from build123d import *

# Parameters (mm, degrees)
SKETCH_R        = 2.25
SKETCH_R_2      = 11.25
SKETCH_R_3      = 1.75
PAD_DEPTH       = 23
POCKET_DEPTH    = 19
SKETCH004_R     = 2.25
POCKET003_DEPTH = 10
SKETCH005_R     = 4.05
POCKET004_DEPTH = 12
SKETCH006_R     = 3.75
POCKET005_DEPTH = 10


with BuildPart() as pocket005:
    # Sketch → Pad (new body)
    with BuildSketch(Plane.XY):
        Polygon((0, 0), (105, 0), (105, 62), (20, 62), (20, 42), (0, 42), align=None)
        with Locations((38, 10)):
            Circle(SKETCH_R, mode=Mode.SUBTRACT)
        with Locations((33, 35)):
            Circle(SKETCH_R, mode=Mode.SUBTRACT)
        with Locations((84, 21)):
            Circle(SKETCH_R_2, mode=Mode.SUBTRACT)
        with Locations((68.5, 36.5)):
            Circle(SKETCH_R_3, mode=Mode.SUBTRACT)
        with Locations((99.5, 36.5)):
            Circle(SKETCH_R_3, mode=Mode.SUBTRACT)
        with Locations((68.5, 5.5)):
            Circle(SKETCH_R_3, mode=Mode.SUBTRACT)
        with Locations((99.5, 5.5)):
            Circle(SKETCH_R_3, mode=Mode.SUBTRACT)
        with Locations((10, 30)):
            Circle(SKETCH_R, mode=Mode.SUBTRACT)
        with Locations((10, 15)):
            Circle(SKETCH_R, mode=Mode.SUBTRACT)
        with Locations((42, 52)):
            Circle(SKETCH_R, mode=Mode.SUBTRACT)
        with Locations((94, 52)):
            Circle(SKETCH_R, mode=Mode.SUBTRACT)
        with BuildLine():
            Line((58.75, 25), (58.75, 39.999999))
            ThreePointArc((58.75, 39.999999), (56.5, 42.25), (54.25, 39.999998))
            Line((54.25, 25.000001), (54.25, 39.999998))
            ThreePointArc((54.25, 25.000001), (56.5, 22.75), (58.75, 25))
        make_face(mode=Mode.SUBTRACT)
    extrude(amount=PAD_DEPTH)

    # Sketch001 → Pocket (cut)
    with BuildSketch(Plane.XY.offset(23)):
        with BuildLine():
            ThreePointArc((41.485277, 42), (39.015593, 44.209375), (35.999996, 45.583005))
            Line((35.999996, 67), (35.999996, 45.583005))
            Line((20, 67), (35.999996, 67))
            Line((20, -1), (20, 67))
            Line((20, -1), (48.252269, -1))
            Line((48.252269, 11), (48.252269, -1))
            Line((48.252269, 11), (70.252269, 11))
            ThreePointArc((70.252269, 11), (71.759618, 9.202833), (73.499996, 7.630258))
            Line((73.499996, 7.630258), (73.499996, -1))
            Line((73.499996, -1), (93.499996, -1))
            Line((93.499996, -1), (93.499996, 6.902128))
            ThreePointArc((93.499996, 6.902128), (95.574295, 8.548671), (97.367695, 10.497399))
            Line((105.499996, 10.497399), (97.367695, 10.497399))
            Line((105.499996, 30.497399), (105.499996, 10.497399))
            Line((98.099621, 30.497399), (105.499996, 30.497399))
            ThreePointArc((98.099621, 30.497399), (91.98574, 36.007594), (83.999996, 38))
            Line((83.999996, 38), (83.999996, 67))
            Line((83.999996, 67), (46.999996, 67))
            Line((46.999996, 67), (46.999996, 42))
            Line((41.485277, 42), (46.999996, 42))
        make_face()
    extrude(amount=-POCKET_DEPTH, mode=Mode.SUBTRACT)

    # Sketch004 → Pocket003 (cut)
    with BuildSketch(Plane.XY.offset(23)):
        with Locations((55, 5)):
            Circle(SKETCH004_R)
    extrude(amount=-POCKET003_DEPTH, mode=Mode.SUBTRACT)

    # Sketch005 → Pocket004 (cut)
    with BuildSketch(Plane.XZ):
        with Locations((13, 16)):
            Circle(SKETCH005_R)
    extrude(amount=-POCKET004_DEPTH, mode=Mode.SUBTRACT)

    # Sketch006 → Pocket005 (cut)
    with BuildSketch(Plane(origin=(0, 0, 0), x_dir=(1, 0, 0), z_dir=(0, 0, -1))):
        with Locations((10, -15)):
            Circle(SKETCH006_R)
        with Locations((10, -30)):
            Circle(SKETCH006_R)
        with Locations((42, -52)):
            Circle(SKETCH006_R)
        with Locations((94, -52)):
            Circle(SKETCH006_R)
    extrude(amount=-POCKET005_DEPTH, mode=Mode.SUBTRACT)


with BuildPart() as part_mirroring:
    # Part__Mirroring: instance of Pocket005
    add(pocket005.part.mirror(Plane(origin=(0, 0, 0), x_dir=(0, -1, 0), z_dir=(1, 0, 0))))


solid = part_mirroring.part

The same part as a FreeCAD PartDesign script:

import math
import FreeCAD as App
import Part
import Sketcher
from FreeCAD import Vector
Q = App.Units.Quantity

doc = App.newDocument("Part")
body = doc.addObject("PartDesign::Body", "Body")

# Sketch on XY plane
sketch1 = body.newObject("Sketcher::SketchObject", "Sketch")
sketch1.AttachmentSupport = (doc.getObject("XY_Plane"), [""])
sketch1.MapMode = "FlatFace"
sketch1.addGeometry(Part.LineSegment(Vector(0, 0, 0), Vector(105, 0, 0)), False)
sketch1.addGeometry(Part.LineSegment(Vector(105, 0, 0), Vector(105, 62, 0)), False)
sketch1.addGeometry(Part.LineSegment(Vector(105, 62, 0), Vector(20, 62, 0)), False)
sketch1.addGeometry(Part.LineSegment(Vector(20, 62, 0), Vector(20, 42, 0)), False)
sketch1.addGeometry(Part.LineSegment(Vector(20, 42, 0), Vector(0, 42, 0)), False)
sketch1.addGeometry(Part.LineSegment(Vector(0, 42, 0), Vector(0, 0, 0)), False)
sketch1.addGeometry(Part.Circle(Vector(10, 15, 0), Vector(0, 0, 1), 2.2), False)
sketch1.addGeometry(Part.Circle(Vector(38, 10, 0), Vector(0, 0, 1), 2.2), False)
sketch1.addGeometry(Part.Circle(Vector(68.5, 5.5, 0), Vector(0, 0, 1), 1.8), False)
sketch1.addGeometry(Part.Circle(Vector(99.5, 5.5, 0), Vector(0, 0, 1), 1.8), False)
sketch1.addGeometry(Part.Circle(Vector(84, 21, 0), Vector(0, 0, 1), 11.2), False)
sketch1.addGeometry(Part.Circle(Vector(10, 30, 0), Vector(0, 0, 1), 2.2), False)
sketch1.addGeometry(Part.Circle(Vector(33, 35, 0), Vector(0, 0, 1), 2.2), False)
sketch1.addGeometry(Part.Circle(Vector(42, 52, 0), Vector(0, 0, 1), 2.2), False)
sketch1.addGeometry(Part.LineSegment(Vector(58.8, 40, 0), Vector(58.8, 25, 0)), False)
sketch1.addGeometry(Part.ArcOfCircle(Part.Circle(Vector(56.5, 25, 0), Vector(0, 0, 1), 2.2), math.radians(180), math.radians(360)), False)
sketch1.addGeometry(Part.LineSegment(Vector(54.2, 25, 0), Vector(54.2, 40, 0)), False)
sketch1.addGeometry(Part.ArcOfCircle(Part.Circle(Vector(56.5, 40, 0), Vector(0, 0, 1), 2.2), math.radians(0), math.radians(180)), False)
sketch1.addGeometry(Part.Circle(Vector(68.5, 36.5, 0), Vector(0, 0, 1), 1.8), False)
sketch1.addGeometry(Part.Circle(Vector(99.5, 36.5, 0), Vector(0, 0, 1), 1.8), False)
sketch1.addGeometry(Part.Circle(Vector(94, 52, 0), Vector(0, 0, 1), 2.2), False)
sketch1.addConstraint(Sketcher.Constraint("Coincident", 0, 2, 1, 1))
sketch1.addConstraint(Sketcher.Constraint("Coincident", 1, 2, 2, 1))
sketch1.addConstraint(Sketcher.Constraint("Coincident", 2, 2, 3, 1))
sketch1.addConstraint(Sketcher.Constraint("Coincident", 3, 2, 4, 1))
sketch1.addConstraint(Sketcher.Constraint("Coincident", 4, 2, 5, 1))
sketch1.addConstraint(Sketcher.Constraint("Coincident", 5, 2, 0, 1))
sketch1.addConstraint(Sketcher.Constraint("Tangent", 14, 2, 15, 2))
sketch1.addConstraint(Sketcher.Constraint("Tangent", 15, 1, 16, 1))
sketch1.addConstraint(Sketcher.Constraint("Tangent", 16, 2, 17, 2))
sketch1.addConstraint(Sketcher.Constraint("Tangent", 17, 1, 14, 1))
sketch1.addConstraint(Sketcher.Constraint("Horizontal", 0))
sketch1.addConstraint(Sketcher.Constraint("Vertical", 1))
sketch1.addConstraint(Sketcher.Constraint("Horizontal", 2))
sketch1.addConstraint(Sketcher.Constraint("Vertical", 3))
sketch1.addConstraint(Sketcher.Constraint("Horizontal", 4))
sketch1.addConstraint(Sketcher.Constraint("Vertical", 5))
sketch1.addConstraint(Sketcher.Constraint("Vertical", 14))
sketch1.addConstraint(Sketcher.Constraint("Vertical", 16))
sketch1.addConstraint(Sketcher.Constraint("Coincident", 5, 2, -1, 1))
sketch1.addConstraint(Sketcher.Constraint("Equal", 6, 7))
sketch1.addConstraint(Sketcher.Constraint("Equal", 8, 9))
sketch1.addConstraint(Sketcher.Constraint("Equal", 7, 11))
sketch1.addConstraint(Sketcher.Constraint("Equal", 11, 12))
sketch1.addConstraint(Sketcher.Constraint("Equal", 12, 13))
sketch1.addConstraint(Sketcher.Constraint("Equal", 13, 15))
sketch1.addConstraint(Sketcher.Constraint("Equal", 9, 18))
sketch1.addConstraint(Sketcher.Constraint("Equal", 18, 19))
sketch1.addConstraint(Sketcher.Constraint("Equal", 17, 20))
sketch1.addConstraint(Sketcher.Constraint("Horizontal", 8, 3, 9, 3))
sketch1.addConstraint(Sketcher.Constraint("Horizontal", 18, 3, 19, 3))
sketch1.addConstraint(Sketcher.Constraint("Horizontal", 13, 3, 20, 3))
sketch1.addConstraint(Sketcher.Constraint("Vertical", 6, 3, 11, 3))
sketch1.addConstraint(Sketcher.Constraint("Vertical", 8, 3, 18, 3))
sketch1.addConstraint(Sketcher.Constraint("Vertical", 9, 3, 19, 3))
sketch1.addConstraint(Sketcher.Constraint("Equal", 4, 3))
sketch1.addConstraint(Sketcher.Constraint("Diameter", 6, Q("4.5 mm")))
sketch1.addConstraint(Sketcher.Constraint("Diameter", 8, Q("3.5 mm")))
sketch1.addConstraint(Sketcher.Constraint("Diameter", 10, Q("22.5 mm")))
sketch1.addConstraint(Sketcher.Constraint("DistanceX", 0, 1, 0, 2, Q("105 mm")))
sketch1.addConstraint(Sketcher.Constraint("DistanceX", 2, 2, 2, 1, Q("85 mm")))
sketch1.addConstraint(Sketcher.Constraint("DistanceY", 1, 1, 1, 2, Q("62 mm")))
sketch1.addConstraint(Sketcher.Constraint("DistanceY", 14, 2, 14, 1, Q("14.999999 mm")))
sketch1.addConstraint(Sketcher.Constraint("DistanceX", -1, 1, 6, 3, Q("10 mm")))
sketch1.addConstraint(Sketcher.Constraint("DistanceY", -1, 1, 6, 3, Q("15 mm")))
sketch1.addConstraint(Sketcher.Constraint("DistanceX", -1, 1, 7, 3, Q("38 mm")))
sketch1.addConstraint(Sketcher.Constraint("DistanceY", -1, 1, 7, 3, Q("10 mm")))
sketch1.addConstraint(Sketcher.Constraint("DistanceX", -1, 1, 10, 3, Q("84 mm")))
sketch1.addConstraint(Sketcher.Constraint("DistanceY", -1, 1, 10, 3, Q("21 mm")))
sketch1.addConstraint(Sketcher.Constraint("DistanceY", -1, 1, 11, 3, Q("30 mm")))
sketch1.addConstraint(Sketcher.Constraint("DistanceX", -1, 1, 12, 3, Q("33 mm")))
sketch1.addConstraint(Sketcher.Constraint("DistanceY", -1, 1, 12, 3, Q("35 mm")))
sketch1.addConstraint(Sketcher.Constraint("DistanceX", -1, 1, 13, 3, Q("42 mm")))
sketch1.addConstraint(Sketcher.Constraint("DistanceY", -1, 1, 13, 3, Q("52 mm")))
sketch1.addConstraint(Sketcher.Constraint("DistanceY", -1, 1, 15, 3, Q("25 mm")))
sketch1.addConstraint(Sketcher.Constraint("DistanceX", -1, 1, 20, 3, Q("94 mm")))
sketch1.addConstraint(Sketcher.Constraint("DistanceX", 8, 3, 9, 3, Q("31 mm")))
sketch1.addConstraint(Sketcher.Constraint("DistanceX", 15, 3, 8, 3, Q("12 mm")))
sketch1.addConstraint(Sketcher.Constraint("DistanceY", 8, 3, 18, 3, Q("31 mm")))
sketch1.addConstraint(Sketcher.Constraint("DistanceX", -1, 1, 8, 3, Q("68.5 mm")))
sketch1.addConstraint(Sketcher.Constraint("DistanceY", -1, 1, 8, 3, Q("5.5 mm")))
pad1 = body.newObject("PartDesign::Pad", "Pad")
pad1.Profile = sketch1
pad1.Length = 23

# Sketch on XY plane
sketch2 = body.newObject("Sketcher::SketchObject", "Sketch001")
sketch2.AttachmentSupport = (doc.getObject("XY_Plane"), [""])
sketch2.MapMode = "FlatFace"
sketch2.AttachmentOffset = App.Placement(Vector(0, 0, 23), App.Rotation())
sketch2.addGeometry(Part.ArcOfCircle(Part.Circle(Vector(33, 35, 0), Vector(0, 0, 1), 11), math.radians(40), math.radians(74)), False)
sketch2.addGeometry(Part.LineSegment(Vector(36, 45.6, 0), Vector(36, 67, 0)), False)
sketch2.addGeometry(Part.LineSegment(Vector(36, 67, 0), Vector(20, 67, 0)), False)
sketch2.addGeometry(Part.LineSegment(Vector(20, 67, 0), Vector(20, -1, 0)), False)
sketch2.addGeometry(Part.LineSegment(Vector(20, -1, 0), Vector(48.3, -1, 0)), False)
sketch2.addGeometry(Part.LineSegment(Vector(48.3, -1, 0), Vector(48.3, 11, 0)), False)
sketch2.addGeometry(Part.LineSegment(Vector(48.3, 11, 0), Vector(70.3, 11, 0)), False)
sketch2.addGeometry(Part.ArcOfCircle(Part.Circle(Vector(84, 21, 0), Vector(0, 0, 1), 17), math.radians(-143.97), math.radians(-128.14)), False)
sketch2.addGeometry(Part.LineSegment(Vector(73.5, 7.6, 0), Vector(73.5, -1, 0)), False)
sketch2.addGeometry(Part.LineSegment(Vector(73.5, -1, 0), Vector(93.5, -1, 0)), False)
sketch2.addGeometry(Part.LineSegment(Vector(93.5, -1, 0), Vector(93.5, 6.9, 0)), False)
sketch2.addGeometry(Part.ArcOfCircle(Part.Circle(Vector(84, 21, 0), Vector(0, 0, 1), 17), math.radians(-56.03), math.radians(-38.16)), False)
sketch2.addGeometry(Part.LineSegment(Vector(97.4, 10.5, 0), Vector(105.5, 10.5, 0)), False)
sketch2.addGeometry(Part.LineSegment(Vector(105.5, 10.5, 0), Vector(105.5, 30.5, 0)), False)
sketch2.addGeometry(Part.LineSegment(Vector(105.5, 30.5, 0), Vector(98.1, 30.5, 0)), False)
sketch2.addGeometry(Part.ArcOfCircle(Part.Circle(Vector(84, 21, 0), Vector(0, 0, 1), 17), math.radians(34), math.radians(90)), False)
sketch2.addGeometry(Part.LineSegment(Vector(84, 38, 0), Vector(84, 67, 0)), False)
sketch2.addGeometry(Part.LineSegment(Vector(84, 67, 0), Vector(47, 67, 0)), False)
sketch2.addGeometry(Part.LineSegment(Vector(47, 67, 0), Vector(47, 42, 0)), False)
sketch2.addGeometry(Part.LineSegment(Vector(47, 42, 0), Vector(41.5, 42, 0)), False)
sketch2.addConstraint(Sketcher.Constraint("Coincident", 0, 2, 1, 1))
sketch2.addConstraint(Sketcher.Constraint("Coincident", 1, 2, 2, 1))
sketch2.addConstraint(Sketcher.Constraint("Coincident", 2, 2, 3, 1))
sketch2.addConstraint(Sketcher.Constraint("Coincident", 3, 2, 4, 1))
sketch2.addConstraint(Sketcher.Constraint("Coincident", 4, 2, 5, 1))
sketch2.addConstraint(Sketcher.Constraint("Coincident", 5, 2, 6, 1))
sketch2.addConstraint(Sketcher.Constraint("Coincident", 6, 2, 7, 1))
sketch2.addConstraint(Sketcher.Constraint("Coincident", 7, 2, 8, 1))
sketch2.addConstraint(Sketcher.Constraint("Coincident", 8, 2, 9, 1))
sketch2.addConstraint(Sketcher.Constraint("Coincident", 9, 2, 10, 1))
sketch2.addConstraint(Sketcher.Constraint("Coincident", 10, 2, 11, 1))
sketch2.addConstraint(Sketcher.Constraint("Coincident", 11, 2, 12, 1))
sketch2.addConstraint(Sketcher.Constraint("Coincident", 12, 2, 13, 1))
sketch2.addConstraint(Sketcher.Constraint("Coincident", 13, 2, 14, 1))
sketch2.addConstraint(Sketcher.Constraint("Coincident", 14, 2, 15, 1))
sketch2.addConstraint(Sketcher.Constraint("Coincident", 15, 2, 16, 1))
sketch2.addConstraint(Sketcher.Constraint("Coincident", 16, 2, 17, 1))
sketch2.addConstraint(Sketcher.Constraint("Coincident", 17, 2, 18, 1))
sketch2.addConstraint(Sketcher.Constraint("Coincident", 18, 2, 19, 1))
sketch2.addConstraint(Sketcher.Constraint("Coincident", 19, 2, 0, 1))
sketch2.addConstraint(Sketcher.Constraint("Vertical", 1))
sketch2.addConstraint(Sketcher.Constraint("Horizontal", 2))
sketch2.addConstraint(Sketcher.Constraint("Vertical", 3))
sketch2.addConstraint(Sketcher.Constraint("Horizontal", 4))
sketch2.addConstraint(Sketcher.Constraint("Vertical", 5))
sketch2.addConstraint(Sketcher.Constraint("Horizontal", 6))
sketch2.addConstraint(Sketcher.Constraint("Vertical", 8))
sketch2.addConstraint(Sketcher.Constraint("Horizontal", 9))
sketch2.addConstraint(Sketcher.Constraint("Vertical", 10))
sketch2.addConstraint(Sketcher.Constraint("Horizontal", 12))
sketch2.addConstraint(Sketcher.Constraint("Vertical", 13))
sketch2.addConstraint(Sketcher.Constraint("Horizontal", 14))
sketch2.addConstraint(Sketcher.Constraint("Vertical", 16))
sketch2.addConstraint(Sketcher.Constraint("Horizontal", 17))
sketch2.addConstraint(Sketcher.Constraint("Vertical", 18))
sketch2.addConstraint(Sketcher.Constraint("Horizontal", 19))
sketch2.addConstraint(Sketcher.Constraint("Coincident", 15, 3, 7, 3))
sketch2.addConstraint(Sketcher.Constraint("Horizontal", 4, 2, 8, 2))
sketch2.addConstraint(Sketcher.Constraint("Horizontal", 2, 2, 16, 2))
sketch2.addConstraint(Sketcher.Constraint("Equal", 9, 13))
sketch2.addConstraint(Sketcher.Constraint("Radius", 0, Q("10.999999 mm")))
sketch2.addConstraint(Sketcher.Constraint("DistanceX", 6, 1, 6, 2, Q("22 mm")))
sketch2.addConstraint(Sketcher.Constraint("DistanceX", 9, 1, 9, 2, Q("20 mm")))
sketch2.addConstraint(Sketcher.Constraint("DistanceX", 17, 2, 17, 1, Q("37 mm")))
sketch2.addConstraint(Sketcher.Constraint("DistanceY", 3, 2, 3, 1, Q("68 mm")))
sketch2.addConstraint(Sketcher.Constraint("DistanceY", 5, 1, 5, 2, Q("12 mm")))
sketch2.addConstraint(Sketcher.Constraint("DistanceY", 16, 1, 16, 2, Q("29 mm")))
sketch2.addConstraint(Sketcher.Constraint("DistanceY", 18, 2, 18, 1, Q("25 mm")))
sketch2.addConstraint(Sketcher.Constraint("DistanceY", -1, 1, 0, 3, Q("35.000001 mm")))
sketch2.addConstraint(Sketcher.Constraint("DistanceY", -1, 1, 1, 2, Q("67 mm")))
sketch2.addConstraint(Sketcher.Constraint("DistanceX", -1, 1, 2, 2, Q("20 mm")))
sketch2.addConstraint(Sketcher.Constraint("DistanceX", 0, 3, 0, 2, Q("3 mm")))
sketch2.addConstraint(Sketcher.Constraint("DistanceX", 10, 2, 12, 2, Q("12 mm")))
sketch2.addConstraint(Sketcher.Constraint("DistanceX", 1, 2, 17, 2, Q("11 mm")))
sketch2.addConstraint(Sketcher.Constraint("DistanceX", 15, 2, 13, 2, Q("21.5 mm")))
sketch2.addConstraint(Sketcher.Constraint("Radius", 7, Q("16.99999 mm")))
sketch2.addConstraint(Sketcher.Constraint("Radius", 11, Q("17.00002 mm")))
sketch2.addConstraint(Sketcher.Constraint("DistanceX", 12, 1, 12, 2, Q("8.132301 mm")))
sketch2.addConstraint(Sketcher.Constraint("Radius", 15, Q("17.000005 mm")))
sketch2.addConstraint(Sketcher.Constraint("DistanceX", 4, 1, 4, 2, Q("28.252269 mm")))
sketch2.addConstraint(Sketcher.Constraint("DistanceY", 8, 2, 8, 1, Q("8.630258 mm")))
sketch2.addConstraint(Sketcher.Constraint("DistanceY", 10, 1, 10, 2, Q("7.902128 mm")))
sketch2.addConstraint(Sketcher.Constraint("DistanceY", -1, 1, 11, 2, Q("10.497399 mm")))
pocket1 = body.newObject("PartDesign::Pocket", "Pocket")
pocket1.Profile = sketch2
pocket1.Length = 19

# Sketch on XY plane
sketch3 = body.newObject("Sketcher::SketchObject", "Sketch002")
sketch3.AttachmentSupport = (doc.getObject("XY_Plane"), [""])
sketch3.MapMode = "FlatFace"
sketch3.AttachmentOffset = App.Placement(Vector(0, 0, 23), App.Rotation())
sketch3.addGeometry(Part.Circle(Vector(55, 5, 0), Vector(0, 0, 1), 2.2), False)
sketch3.addConstraint(Sketcher.Constraint("Diameter", 0, Q("4.5 mm")))
sketch3.addConstraint(Sketcher.Constraint("DistanceX", -1, 1, 0, 3, Q("55 mm")))
sketch3.addConstraint(Sketcher.Constraint("DistanceY", -1, 1, 0, 3, Q("5 mm")))
pocket2 = body.newObject("PartDesign::Pocket", "Pocket001")
pocket2.Profile = sketch3
pocket2.Length = 10

# Sketch on XZ plane
sketch4 = body.newObject("Sketcher::SketchObject", "Sketch003")
sketch4.AttachmentSupport = (doc.getObject("XZ_Plane"), [""])
sketch4.MapMode = "FlatFace"
sketch4.addGeometry(Part.Circle(Vector(13, 16, 0), Vector(0, 0, 1), 4), False)
sketch4.addConstraint(Sketcher.Constraint("Diameter", 0, Q("8.1 mm")))
sketch4.addConstraint(Sketcher.Constraint("DistanceX", -1, 1, 0, 3, Q("13 mm")))
sketch4.addConstraint(Sketcher.Constraint("DistanceY", -1, 1, 0, 3, Q("16 mm")))
pocket3 = body.newObject("PartDesign::Pocket", "Pocket002")
pocket3.Profile = sketch4
pocket3.Length = 12

# Sketch on XY plane
sketch5 = body.newObject("Sketcher::SketchObject", "Sketch004")
sketch5.AttachmentSupport = (doc.getObject("XY_Plane"), [""])
sketch5.MapMode = "FlatFace"
sketch5.addGeometry(Part.Circle(Vector(10, 15, 0), Vector(0, 0, 1), 3.8), False)
sketch5.addGeometry(Part.Circle(Vector(10, 30, 0), Vector(0, 0, 1), 3.8), False)
sketch5.addGeometry(Part.Circle(Vector(42, 52, 0), Vector(0, 0, 1), 3.8), False)
sketch5.addGeometry(Part.Circle(Vector(94, 52, 0), Vector(0, 0, 1), 3.8), False)
sketch5.addConstraint(Sketcher.Constraint("Equal", 0, 1))
sketch5.addConstraint(Sketcher.Constraint("Equal", 1, 2))
sketch5.addConstraint(Sketcher.Constraint("Equal", 2, 3))
sketch5.addConstraint(Sketcher.Constraint("Horizontal", 2, 3, 3, 3))
sketch5.addConstraint(Sketcher.Constraint("Vertical", 0, 3, 1, 3))
sketch5.addConstraint(Sketcher.Constraint("Diameter", 0, Q("7.5 mm")))
sketch5.addConstraint(Sketcher.Constraint("DistanceX", -1, 1, 0, 3, Q("10 mm")))
sketch5.addConstraint(Sketcher.Constraint("DistanceY", -1, 1, 0, 3, Q("15 mm")))
sketch5.addConstraint(Sketcher.Constraint("DistanceY", -1, 1, 1, 3, Q("30 mm")))
sketch5.addConstraint(Sketcher.Constraint("DistanceX", -1, 1, 2, 3, Q("42 mm")))
sketch5.addConstraint(Sketcher.Constraint("DistanceY", -1, 1, 2, 3, Q("52 mm")))
sketch5.addConstraint(Sketcher.Constraint("DistanceX", -1, 1, 3, 3, Q("94 mm")))
pocket4 = body.newObject("PartDesign::Pocket", "Pocket003")
pocket4.Profile = sketch5
pocket4.Length = 10
pocket4.Reversed = True
body2 = doc.addObject("PartDesign::Body", "Body001")
doc.recompute()

mirroring = doc.addObject("Part::Mirroring", "Mirroring")
mirroring.Source = body
mirroring.Base = Vector(0, 0, 0)
mirroring.Normal = Vector(1, 0, 0)
body2.BaseFeature = mirroring
doc.recompute()
body.Visibility = False
mirroring.Visibility = False

doc.recompute()
